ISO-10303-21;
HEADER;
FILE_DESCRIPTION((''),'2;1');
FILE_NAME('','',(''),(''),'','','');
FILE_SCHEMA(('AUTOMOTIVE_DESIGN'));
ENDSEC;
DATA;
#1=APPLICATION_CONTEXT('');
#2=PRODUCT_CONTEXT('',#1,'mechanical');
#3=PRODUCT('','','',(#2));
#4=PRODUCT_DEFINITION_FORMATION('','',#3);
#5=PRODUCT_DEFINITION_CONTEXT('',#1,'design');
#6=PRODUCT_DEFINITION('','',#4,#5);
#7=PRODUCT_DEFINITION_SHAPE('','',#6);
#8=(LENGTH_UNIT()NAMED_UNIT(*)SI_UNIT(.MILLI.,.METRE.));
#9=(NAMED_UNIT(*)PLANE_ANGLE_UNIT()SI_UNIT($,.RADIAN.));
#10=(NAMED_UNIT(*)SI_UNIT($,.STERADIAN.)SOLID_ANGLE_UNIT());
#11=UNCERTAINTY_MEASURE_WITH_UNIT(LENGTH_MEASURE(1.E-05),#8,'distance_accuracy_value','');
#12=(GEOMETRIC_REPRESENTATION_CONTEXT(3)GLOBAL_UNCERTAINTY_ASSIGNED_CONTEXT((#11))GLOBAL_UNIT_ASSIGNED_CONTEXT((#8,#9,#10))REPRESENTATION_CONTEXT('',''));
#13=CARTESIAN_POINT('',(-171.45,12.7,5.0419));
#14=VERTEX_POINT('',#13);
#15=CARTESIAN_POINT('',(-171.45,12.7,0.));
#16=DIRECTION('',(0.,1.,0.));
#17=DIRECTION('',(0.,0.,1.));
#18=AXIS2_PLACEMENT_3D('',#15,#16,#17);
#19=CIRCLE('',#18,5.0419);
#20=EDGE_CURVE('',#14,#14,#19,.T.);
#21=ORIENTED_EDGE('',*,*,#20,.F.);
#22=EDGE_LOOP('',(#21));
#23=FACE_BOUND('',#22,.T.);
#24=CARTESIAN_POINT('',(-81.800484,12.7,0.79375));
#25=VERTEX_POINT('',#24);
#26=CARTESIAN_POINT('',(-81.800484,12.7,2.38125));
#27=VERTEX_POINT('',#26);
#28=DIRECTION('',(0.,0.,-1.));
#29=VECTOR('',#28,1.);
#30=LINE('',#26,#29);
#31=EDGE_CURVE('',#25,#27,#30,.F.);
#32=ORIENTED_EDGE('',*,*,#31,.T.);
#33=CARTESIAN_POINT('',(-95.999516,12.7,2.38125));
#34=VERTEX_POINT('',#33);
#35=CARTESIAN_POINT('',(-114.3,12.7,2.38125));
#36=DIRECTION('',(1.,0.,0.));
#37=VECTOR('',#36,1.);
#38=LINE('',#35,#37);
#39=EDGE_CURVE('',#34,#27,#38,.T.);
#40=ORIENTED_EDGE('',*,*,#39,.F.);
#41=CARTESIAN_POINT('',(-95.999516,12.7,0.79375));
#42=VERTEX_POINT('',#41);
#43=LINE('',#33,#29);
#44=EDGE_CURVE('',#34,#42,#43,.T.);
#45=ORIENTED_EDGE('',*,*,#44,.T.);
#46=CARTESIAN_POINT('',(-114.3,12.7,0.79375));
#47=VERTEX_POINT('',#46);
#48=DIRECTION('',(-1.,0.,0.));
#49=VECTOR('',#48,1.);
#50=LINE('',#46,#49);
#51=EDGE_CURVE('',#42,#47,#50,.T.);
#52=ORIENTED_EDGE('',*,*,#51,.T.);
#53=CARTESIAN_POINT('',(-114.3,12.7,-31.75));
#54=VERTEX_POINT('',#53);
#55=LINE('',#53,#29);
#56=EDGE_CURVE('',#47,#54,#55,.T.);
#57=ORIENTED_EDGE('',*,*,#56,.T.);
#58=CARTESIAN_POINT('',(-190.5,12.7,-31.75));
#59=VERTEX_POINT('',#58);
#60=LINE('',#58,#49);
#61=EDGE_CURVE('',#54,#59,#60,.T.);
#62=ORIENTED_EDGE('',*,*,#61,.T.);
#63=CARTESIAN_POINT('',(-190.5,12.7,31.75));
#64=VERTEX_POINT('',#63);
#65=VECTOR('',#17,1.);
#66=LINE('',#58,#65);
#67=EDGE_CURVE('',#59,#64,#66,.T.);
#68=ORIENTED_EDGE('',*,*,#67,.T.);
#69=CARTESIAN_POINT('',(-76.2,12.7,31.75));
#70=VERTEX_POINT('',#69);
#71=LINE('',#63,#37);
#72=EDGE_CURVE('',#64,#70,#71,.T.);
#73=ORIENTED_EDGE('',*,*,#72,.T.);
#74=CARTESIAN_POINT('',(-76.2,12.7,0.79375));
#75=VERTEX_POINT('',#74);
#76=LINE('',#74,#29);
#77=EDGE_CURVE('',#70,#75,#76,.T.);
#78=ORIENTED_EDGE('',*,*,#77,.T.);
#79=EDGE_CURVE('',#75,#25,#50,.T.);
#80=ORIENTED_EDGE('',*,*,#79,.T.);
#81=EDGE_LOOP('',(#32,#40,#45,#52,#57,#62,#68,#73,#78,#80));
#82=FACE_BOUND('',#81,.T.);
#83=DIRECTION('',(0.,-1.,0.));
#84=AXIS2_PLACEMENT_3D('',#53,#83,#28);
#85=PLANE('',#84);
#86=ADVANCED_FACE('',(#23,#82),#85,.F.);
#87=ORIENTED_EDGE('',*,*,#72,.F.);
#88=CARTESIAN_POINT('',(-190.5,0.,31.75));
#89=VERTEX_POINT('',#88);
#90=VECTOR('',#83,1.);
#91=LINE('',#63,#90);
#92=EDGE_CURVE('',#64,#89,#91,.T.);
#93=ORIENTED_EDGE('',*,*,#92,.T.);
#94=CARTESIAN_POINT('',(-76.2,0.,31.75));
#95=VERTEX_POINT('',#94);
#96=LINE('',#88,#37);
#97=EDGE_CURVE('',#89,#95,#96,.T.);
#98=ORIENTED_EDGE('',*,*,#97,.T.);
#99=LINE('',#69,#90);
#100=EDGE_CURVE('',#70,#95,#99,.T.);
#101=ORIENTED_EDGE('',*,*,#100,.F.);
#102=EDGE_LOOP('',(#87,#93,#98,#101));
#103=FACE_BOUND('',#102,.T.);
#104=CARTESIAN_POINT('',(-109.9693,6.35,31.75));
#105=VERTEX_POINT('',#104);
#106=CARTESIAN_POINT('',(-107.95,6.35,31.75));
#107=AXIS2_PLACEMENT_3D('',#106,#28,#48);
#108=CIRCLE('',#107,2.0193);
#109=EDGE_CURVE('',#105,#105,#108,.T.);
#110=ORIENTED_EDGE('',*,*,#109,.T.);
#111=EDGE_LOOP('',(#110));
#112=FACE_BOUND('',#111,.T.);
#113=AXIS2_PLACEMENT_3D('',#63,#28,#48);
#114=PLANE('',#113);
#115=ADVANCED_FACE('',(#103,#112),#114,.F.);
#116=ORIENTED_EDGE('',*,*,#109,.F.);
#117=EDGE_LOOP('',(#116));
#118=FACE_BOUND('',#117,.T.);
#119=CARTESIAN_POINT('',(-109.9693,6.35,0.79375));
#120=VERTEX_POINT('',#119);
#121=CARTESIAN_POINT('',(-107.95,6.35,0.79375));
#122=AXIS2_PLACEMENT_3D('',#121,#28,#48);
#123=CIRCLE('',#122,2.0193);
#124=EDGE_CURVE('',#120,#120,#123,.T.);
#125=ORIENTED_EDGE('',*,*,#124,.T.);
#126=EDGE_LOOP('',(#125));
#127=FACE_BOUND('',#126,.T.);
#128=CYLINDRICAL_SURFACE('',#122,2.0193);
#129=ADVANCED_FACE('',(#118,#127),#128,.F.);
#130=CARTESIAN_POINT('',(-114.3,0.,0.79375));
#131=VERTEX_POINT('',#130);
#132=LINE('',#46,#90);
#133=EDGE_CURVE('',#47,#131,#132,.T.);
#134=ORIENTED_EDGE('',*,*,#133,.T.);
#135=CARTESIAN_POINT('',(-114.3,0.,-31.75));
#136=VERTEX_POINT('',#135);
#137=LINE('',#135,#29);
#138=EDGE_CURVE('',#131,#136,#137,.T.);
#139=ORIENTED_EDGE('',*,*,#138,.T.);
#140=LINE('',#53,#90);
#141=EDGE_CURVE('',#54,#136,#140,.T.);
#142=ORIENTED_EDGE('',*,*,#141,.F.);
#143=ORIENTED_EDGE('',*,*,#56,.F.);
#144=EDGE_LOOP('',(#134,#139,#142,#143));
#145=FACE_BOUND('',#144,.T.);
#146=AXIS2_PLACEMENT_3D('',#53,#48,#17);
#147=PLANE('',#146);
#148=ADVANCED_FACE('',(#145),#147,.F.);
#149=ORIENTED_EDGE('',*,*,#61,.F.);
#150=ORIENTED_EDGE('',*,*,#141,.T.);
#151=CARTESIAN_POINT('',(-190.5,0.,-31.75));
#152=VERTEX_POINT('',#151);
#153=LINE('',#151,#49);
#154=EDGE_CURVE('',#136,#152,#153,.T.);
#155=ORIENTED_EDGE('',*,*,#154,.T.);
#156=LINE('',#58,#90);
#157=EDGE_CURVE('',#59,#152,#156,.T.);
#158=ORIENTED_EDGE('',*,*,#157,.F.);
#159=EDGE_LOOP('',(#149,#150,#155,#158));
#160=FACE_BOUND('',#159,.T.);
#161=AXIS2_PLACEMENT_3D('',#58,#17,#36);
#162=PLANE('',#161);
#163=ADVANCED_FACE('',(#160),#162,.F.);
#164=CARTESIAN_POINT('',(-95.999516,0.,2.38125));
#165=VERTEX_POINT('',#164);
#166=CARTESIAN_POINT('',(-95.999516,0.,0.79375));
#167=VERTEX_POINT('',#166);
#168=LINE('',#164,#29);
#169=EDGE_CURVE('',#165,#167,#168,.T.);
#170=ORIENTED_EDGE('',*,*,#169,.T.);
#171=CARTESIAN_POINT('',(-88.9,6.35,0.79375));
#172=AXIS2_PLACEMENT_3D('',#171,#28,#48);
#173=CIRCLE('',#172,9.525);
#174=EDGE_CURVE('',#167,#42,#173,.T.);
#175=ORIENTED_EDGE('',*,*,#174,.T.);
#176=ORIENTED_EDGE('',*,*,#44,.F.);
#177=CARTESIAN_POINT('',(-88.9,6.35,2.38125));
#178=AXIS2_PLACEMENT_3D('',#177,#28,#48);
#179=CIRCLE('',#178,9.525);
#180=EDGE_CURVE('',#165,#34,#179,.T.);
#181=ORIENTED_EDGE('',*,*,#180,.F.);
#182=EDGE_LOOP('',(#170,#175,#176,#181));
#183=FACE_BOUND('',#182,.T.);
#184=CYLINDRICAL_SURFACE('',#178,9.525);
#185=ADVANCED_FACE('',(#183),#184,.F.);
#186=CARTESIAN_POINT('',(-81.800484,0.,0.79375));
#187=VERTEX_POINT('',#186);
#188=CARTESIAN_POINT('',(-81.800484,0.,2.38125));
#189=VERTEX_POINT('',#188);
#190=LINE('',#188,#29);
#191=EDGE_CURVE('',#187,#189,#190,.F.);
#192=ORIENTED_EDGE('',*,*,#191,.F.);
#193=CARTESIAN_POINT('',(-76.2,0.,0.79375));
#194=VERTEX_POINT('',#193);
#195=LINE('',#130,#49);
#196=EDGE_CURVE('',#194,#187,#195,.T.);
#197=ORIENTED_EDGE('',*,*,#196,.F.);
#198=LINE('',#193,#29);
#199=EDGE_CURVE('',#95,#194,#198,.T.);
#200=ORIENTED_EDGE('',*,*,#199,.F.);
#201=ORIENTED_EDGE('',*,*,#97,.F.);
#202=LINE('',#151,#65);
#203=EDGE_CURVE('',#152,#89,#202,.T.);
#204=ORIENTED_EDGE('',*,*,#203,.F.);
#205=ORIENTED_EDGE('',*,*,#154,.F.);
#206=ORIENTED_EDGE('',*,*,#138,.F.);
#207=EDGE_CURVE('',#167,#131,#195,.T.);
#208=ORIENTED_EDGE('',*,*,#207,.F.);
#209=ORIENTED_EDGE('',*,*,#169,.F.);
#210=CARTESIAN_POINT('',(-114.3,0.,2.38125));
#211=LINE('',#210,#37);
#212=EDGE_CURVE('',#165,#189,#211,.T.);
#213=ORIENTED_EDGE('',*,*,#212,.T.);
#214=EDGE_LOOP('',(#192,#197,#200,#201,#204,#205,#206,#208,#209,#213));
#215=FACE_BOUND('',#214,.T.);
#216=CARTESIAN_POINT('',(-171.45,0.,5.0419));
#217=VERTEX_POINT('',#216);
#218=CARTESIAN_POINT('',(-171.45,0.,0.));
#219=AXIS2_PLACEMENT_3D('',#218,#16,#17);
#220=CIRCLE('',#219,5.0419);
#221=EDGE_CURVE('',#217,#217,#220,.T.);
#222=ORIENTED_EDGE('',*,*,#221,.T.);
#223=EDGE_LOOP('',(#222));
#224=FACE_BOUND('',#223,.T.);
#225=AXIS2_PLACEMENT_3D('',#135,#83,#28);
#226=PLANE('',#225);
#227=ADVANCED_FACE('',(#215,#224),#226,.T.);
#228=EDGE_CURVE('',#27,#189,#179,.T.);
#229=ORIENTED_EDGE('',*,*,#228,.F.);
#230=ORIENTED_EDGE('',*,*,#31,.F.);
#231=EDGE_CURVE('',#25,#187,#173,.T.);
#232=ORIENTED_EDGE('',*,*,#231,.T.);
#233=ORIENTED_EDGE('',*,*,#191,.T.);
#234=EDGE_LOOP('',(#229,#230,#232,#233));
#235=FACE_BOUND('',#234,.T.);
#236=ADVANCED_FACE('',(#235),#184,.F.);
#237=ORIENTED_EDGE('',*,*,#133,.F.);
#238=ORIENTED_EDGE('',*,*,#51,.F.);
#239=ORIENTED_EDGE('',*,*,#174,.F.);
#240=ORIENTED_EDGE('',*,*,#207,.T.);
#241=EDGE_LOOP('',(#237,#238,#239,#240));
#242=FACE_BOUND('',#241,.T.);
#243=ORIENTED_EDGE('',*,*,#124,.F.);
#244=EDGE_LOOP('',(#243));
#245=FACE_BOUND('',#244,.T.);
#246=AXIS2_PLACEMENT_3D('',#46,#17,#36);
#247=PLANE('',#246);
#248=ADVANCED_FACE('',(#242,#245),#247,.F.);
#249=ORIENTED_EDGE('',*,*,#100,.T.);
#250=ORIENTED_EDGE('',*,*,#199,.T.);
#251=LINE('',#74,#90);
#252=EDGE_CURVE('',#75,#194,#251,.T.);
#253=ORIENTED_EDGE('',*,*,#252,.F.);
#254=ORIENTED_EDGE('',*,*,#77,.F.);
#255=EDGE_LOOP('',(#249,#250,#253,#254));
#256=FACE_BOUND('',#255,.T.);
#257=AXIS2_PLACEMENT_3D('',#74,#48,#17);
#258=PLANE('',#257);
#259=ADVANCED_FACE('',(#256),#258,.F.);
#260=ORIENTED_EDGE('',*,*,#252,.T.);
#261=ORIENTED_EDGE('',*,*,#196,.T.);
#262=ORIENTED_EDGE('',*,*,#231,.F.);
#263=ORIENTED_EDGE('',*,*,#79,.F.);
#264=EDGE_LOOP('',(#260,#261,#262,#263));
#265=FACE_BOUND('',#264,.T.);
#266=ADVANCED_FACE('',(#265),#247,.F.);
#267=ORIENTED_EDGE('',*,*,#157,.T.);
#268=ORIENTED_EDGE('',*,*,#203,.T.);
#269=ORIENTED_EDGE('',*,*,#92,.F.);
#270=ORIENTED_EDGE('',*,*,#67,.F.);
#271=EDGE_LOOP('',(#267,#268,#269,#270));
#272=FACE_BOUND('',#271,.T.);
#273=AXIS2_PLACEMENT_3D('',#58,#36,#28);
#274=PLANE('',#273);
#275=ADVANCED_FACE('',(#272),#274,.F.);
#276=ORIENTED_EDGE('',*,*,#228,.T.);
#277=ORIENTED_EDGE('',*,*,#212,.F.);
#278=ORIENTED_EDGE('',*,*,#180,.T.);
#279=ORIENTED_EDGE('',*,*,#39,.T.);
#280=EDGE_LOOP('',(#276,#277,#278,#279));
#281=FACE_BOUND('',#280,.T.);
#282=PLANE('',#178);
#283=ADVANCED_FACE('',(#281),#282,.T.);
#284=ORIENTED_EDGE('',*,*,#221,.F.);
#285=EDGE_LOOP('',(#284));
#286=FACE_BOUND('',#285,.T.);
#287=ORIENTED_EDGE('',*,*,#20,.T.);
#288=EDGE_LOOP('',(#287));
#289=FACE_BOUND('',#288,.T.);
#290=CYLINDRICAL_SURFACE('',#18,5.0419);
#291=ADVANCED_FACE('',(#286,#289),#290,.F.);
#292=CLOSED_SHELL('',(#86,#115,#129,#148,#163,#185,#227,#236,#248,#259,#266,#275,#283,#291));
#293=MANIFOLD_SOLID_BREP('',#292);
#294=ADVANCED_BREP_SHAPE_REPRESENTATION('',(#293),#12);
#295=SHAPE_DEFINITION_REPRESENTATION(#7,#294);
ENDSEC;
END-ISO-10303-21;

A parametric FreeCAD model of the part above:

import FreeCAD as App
import Part
import Sketcher

V = App.Vector
Q = App.Units.Quantity

doc = App.newDocument("Part")
params = doc.addObject("Spreadsheet::Sheet", "Params")
for row, (alias, value) in enumerate([
    ("sketch1_width", "3 in"),
    ("sketch1_width2", "4.5 in"),
    ("sketch1_height", "2.5 in"),
    ("sketch1_height2", "1.28125 in"),
    ("pad1_length", "0.5 in"),
    ("sketch2_diameter", "0.159 in"),
    ("hole_diameter", "0.159 in"),
    ("sketch3_diameter", "0.397 in"),
    ("hole2_diameter", "0.397 in"),
    ("sketch4_diameter", "0.75 in"),
    ("pocket1_length", "0.0625 in"),
], start=1):
    params.set(f"A{row}", alias)
    params.set(f"B{row}", "=" + value)
    params.setAlias(f"B{row}", alias)

body = doc.addObject("PartDesign::Body", "Body")

# Sketch on XZ plane
sketch1 = body.newObject("Sketcher::SketchObject", "Sketch")
sketch1.AttachmentSupport = (doc.getObject("XZ_Plane"), [""])
sketch1.MapMode = "FlatFace"
sketch1.addGeometry([
    Part.LineSegment(V(-114.3, 0.79375, 0), V(-114.3, -31.75, 0)),  # 0
    Part.LineSegment(V(-114.3, -31.75, 0), V(-190.5, -31.75, 0)),  # 1
    Part.LineSegment(V(-190.5, -31.75, 0), V(-190.5, 31.75, 0)),  # 2
    Part.LineSegment(V(-190.5, 31.75, 0), V(-76.2, 31.75, 0)),  # 3
    Part.LineSegment(V(-76.2, 31.75, 0), V(-76.2, 0.79375, 0)),  # 4
    Part.LineSegment(V(-76.2, 0.79375, 0), V(-114.3, 0.79375, 0)),  # 5
], False)
sketch1.addConstraint([
    Sketcher.Constraint("Coincident", 0, 2, 1, 1),
    Sketcher.Constraint("Coincident", 1, 2, 2, 1),
    Sketcher.Constraint("Coincident", 2, 2, 3, 1),
    Sketcher.Constraint("Coincident", 3, 2, 4, 1),
    Sketcher.Constraint("Coincident", 4, 2, 5, 1),
    Sketcher.Constraint("Coincident", 5, 2, 0, 1),
    Sketcher.Constraint("Vertical", 0),
    Sketcher.Constraint("Horizontal", 1),
    Sketcher.Constraint("Vertical", 2),
    Sketcher.Constraint("Horizontal", 3),
    Sketcher.Constraint("Vertical", 4),
    Sketcher.Constraint("Horizontal", 5),
    Sketcher.Constraint("DistanceX", 1, 2, 1, 1, Q("3 in")),
    Sketcher.Constraint("DistanceX", 3, 1, 3, 2, Q("4.5 in")),
    Sketcher.Constraint("DistanceY", 2, 1, 2, 2, Q("2.5 in")),
    Sketcher.Constraint("DistanceX", 3, 2, -1, 1, Q("3 in")),
    Sketcher.Constraint("DistanceY", 0, 2, 0, 1, Q("1.28125 in")),
    Sketcher.Constraint("DistanceY", 0, 2, -1, 1, Q("1.25 in")),
])
sketch1.setExpression("Constraints[12]", "Params.sketch1_width")
sketch1.setExpression("Constraints[13]", "Params.sketch1_width2")
sketch1.setExpression("Constraints[14]", "Params.sketch1_height")
sketch1.setExpression("Constraints[16]", "Params.sketch1_height2")
pad1 = body.newObject("PartDesign::Pad", "Pad")
pad1.Profile = sketch1
pad1.setExpression("Length", "Params.pad1_length")
pad1.Reversed = True

# Sketch on XY plane
sketch2 = body.newObject("Sketcher::SketchObject", "Sketch001")
sketch2.AttachmentSupport = (doc.getObject("XY_Plane"), [""])
sketch2.MapMode = "FlatFace"
sketch2.AttachmentOffset = App.Placement(V(0, 0, 0.03125 * 25.4), App.Rotation())
sketch2.addGeometry(Part.Circle(V(-107.95, 6.35, 0), V(0, 0, 1), 2.0193), False)
sketch2.addConstraint([
    Sketcher.Constraint("Diameter", 0, Q("0.159 in")),
    Sketcher.Constraint("DistanceX", 0, 3, -1, 1, Q("4.25 in")),
    Sketcher.Constraint("DistanceY", -1, 1, 0, 3, Q("0.25 in")),
])
sketch2.setExpression("Constraints[0]", "Params.sketch2_diameter")
doc.recompute()
hole = body.newObject("PartDesign::Hole", "Hole")
hole.Profile = sketch2
hole.ThreadType = "None"
hole.setExpression("Diameter", "Params.hole_diameter")
hole.DepthType = "ThroughAll"
hole.Reversed = True

# Sketch on XZ plane
sketch3 = body.newObject("Sketcher::SketchObject", "Sketch002")
sketch3.AttachmentSupport = (doc.getObject("XZ_Plane"), [""])
sketch3.MapMode = "FlatFace"
sketch3.AttachmentOffset = App.Placement(V(0, 0, -0.5 * 25.4), App.Rotation())
sketch3.addGeometry(Part.Circle(V(-171.45, 0, 0), V(0, 0, 1), 5.0419), False)
sketch3.addConstraint([
    Sketcher.Constraint("PointOnObject", 0, 3, -1),
    Sketcher.Constraint("Diameter", 0, Q("0.397 in")),
    Sketcher.Constraint("DistanceX", 0, 3, -1, 1, Q("6.75 in")),
])
sketch3.setExpression("Constraints[1]", "Params.sketch3_diameter")
doc.recompute()
hole2 = body.newObject("PartDesign::Hole", "Hole001")
hole2.Profile = sketch3
hole2.ThreadType = "None"
hole2.setExpression("Diameter", "Params.hole2_diameter")
hole2.DepthType = "ThroughAll"
hole2.Reversed = True

# Sketch on XY plane
sketch4 = body.newObject("Sketcher::SketchObject", "Sketch003")
sketch4.AttachmentSupport = (doc.getObject("XY_Plane"), [""])
sketch4.MapMode = "FlatFace"
sketch4.AttachmentOffset = App.Placement(V(0, 0, 0.03125 * 25.4), App.Rotation())
sketch4.addGeometry(Part.Circle(V(-88.9, 6.35, 0), V(0, 0, 1), 9.525), False)
sketch4.addConstraint([
    Sketcher.Constraint("Diameter", 0, Q("0.75 in")),
    Sketcher.Constraint("DistanceX", 0, 3, -1, 1, Q("3.5 in")),
    Sketcher.Constraint("DistanceY", -1, 1, 0, 3, Q("0.25 in")),
])
sketch4.setExpression("Constraints[0]", "Params.sketch4_diameter")
pocket1 = body.newObject("PartDesign::Pocket", "Pocket")
pocket1.Profile = sketch4
pocket1.setExpression("Length", "Params.pocket1_length")
pocket1.Reversed = True

doc.recompute()
